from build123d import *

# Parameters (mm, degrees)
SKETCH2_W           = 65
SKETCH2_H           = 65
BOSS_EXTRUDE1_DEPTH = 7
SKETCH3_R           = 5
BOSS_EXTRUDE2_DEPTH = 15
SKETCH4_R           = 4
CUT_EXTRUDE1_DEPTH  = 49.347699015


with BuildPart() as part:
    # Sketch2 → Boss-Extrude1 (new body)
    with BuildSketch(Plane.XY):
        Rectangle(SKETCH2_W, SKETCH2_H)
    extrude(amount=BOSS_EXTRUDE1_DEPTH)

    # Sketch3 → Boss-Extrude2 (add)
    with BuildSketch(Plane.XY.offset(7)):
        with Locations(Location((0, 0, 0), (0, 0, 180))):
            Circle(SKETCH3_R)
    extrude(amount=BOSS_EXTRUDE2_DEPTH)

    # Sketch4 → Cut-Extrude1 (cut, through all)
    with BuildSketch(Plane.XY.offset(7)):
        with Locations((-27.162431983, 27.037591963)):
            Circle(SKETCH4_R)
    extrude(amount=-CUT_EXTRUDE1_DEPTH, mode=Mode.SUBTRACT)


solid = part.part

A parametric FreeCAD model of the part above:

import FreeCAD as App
import Part
import Sketcher
Q = App.Units.Quantity


def add_polygon(sketch, points):
    """Adds a closed chain of lines whose ends are joined by coincident constraints."""
    first, n = sketch.GeometryCount, len(points)
    for a, b in zip(points, points[1:] + points[:1]):
        sketch.addGeometry(Part.LineSegment(App.Vector(*a, 0), App.Vector(*b, 0)), False)
    for i in range(n):
        sketch.addConstraint(Sketcher.Constraint("Coincident", first + i, 2, first + (i + 1) % n, 1))

doc = App.newDocument("Part")
body = doc.addObject("PartDesign::Body", "Body")

# Sketch on XY plane
sketch1 = body.newObject("Sketcher::SketchObject", "Sketch")
sketch1.AttachmentSupport = (doc.getObject("XY_Plane"), [""])
sketch1.MapMode = "FlatFace"
add_polygon(sketch1, [(-32, 32), (-32, -32), (32, -32), (32, 32)])  # lines 0-3
sketch1.addConstraint([
    Sketcher.Constraint("Vertical", 0),
    Sketcher.Constraint("Horizontal", 1),
    Sketcher.Constraint("Vertical", 2),
    Sketcher.Constraint("Horizontal", 3),
    Sketcher.Constraint("Symmetric", 0, 2, 2, 2, -1, 1),
    Sketcher.Constraint("Equal", 3, 0),
    Sketcher.Constraint("DistanceX", 1, 1, 1, 2, Q("65 mm")),
])
pad1 = body.newObject("PartDesign::Pad", "Pad")
pad1.Profile = sketch1
pad1.Length = 7

# Sketch on XY plane
sketch2 = body.newObject("Sketcher::SketchObject", "Sketch001")
sketch2.AttachmentSupport = (doc.getObject("XY_Plane"), [""])
sketch2.MapMode = "FlatFace"
sketch2.AttachmentOffset = App.Placement(App.Vector(0, 0, 7), App.Rotation())
sketch2.addGeometry(Part.Circle(App.Vector(0, 0, 0), App.Vector(0, 0, 1), 5), False)
sketch2.addConstraint([
    Sketcher.Constraint("Coincident", 0, 3, -1, 1),
    Sketcher.Constraint("Diameter", 0, Q("10 mm")),
])
pad2 = body.newObject("PartDesign::Pad", "Pad001")
pad2.Profile = sketch2
pad2.Length = 15

# Sketch on XY plane
sketch3 = body.newObject("Sketcher::SketchObject", "Sketch002")
sketch3.AttachmentSupport = (doc.getObject("XY_Plane"), [""])
sketch3.MapMode = "FlatFace"
sketch3.AttachmentOffset = App.Placement(App.Vector(0, 0, 7), App.Rotation())
sketch3.addGeometry(Part.Circle(App.Vector(-27.2, 27, 0), App.Vector(0, 0, 1), 4), False)
sketch3.addConstraint([
    Sketcher.Constraint("Diameter", 0, Q("8 mm")),
    Sketcher.Constraint("DistanceX", 0, 3, -1, 1, Q("27.162432 mm")),
    Sketcher.Constraint("DistanceY", -1, 1, 0, 3, Q("27.037592 mm")),
])
pocket1 = body.newObject("PartDesign::Pocket", "Pocket")
pocket1.Profile = sketch3
pocket1.Type = "ThroughAll"

doc.recompute()
